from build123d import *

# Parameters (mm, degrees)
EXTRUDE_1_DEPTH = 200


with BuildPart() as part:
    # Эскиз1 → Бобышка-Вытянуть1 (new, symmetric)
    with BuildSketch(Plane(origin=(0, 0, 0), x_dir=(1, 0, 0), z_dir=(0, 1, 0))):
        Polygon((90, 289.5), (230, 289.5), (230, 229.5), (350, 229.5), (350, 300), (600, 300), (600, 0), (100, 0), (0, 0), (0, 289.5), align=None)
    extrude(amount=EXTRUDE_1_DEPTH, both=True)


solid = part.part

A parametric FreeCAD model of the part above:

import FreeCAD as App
import Part
import Sketcher

V = App.Vector


def add_polygon(sketch, points):
    """Adds a closed chain of lines whose ends are joined by coincident constraints."""
    first, n = sketch.GeometryCount, len(points)
    for a, b in zip(points, points[1:] + points[:1]):
        sketch.addGeometry(Part.LineSegment(App.Vector(*a, 0), App.Vector(*b, 0)), False)
    for i in range(n):
        sketch.addConstraint(Sketcher.Constraint("Coincident", first + i, 2, first + (i + 1) % n, 1))

doc = App.newDocument("Part")
params = doc.addObject("Spreadsheet::Sheet", "Params")
for row, (alias, value) in enumerate([
    ("sketch1_width", "230 mm"),
    ("sketch1_width2", "600 mm"),
    ("sketch1_width3", "250 mm"),
    ("sketch1_height", "300 mm"),
    ("sketch1_height2", "60 mm"),
    ("pad1_length", "400 mm"),
], start=1):
    params.set(f"A{row}", alias)
    params.set(f"B{row}", "=" + value)
    params.setAlias(f"B{row}", alias)

body = doc.addObject("PartDesign::Body", "Body")

# Sketch on XZ plane
sketch1 = body.newObject("Sketcher::SketchObject", "Sketch")
sketch1.AttachmentSupport = (doc.getObject("XZ_Plane"), [""])
sketch1.MapMode = "FlatFace"
add_polygon(sketch1, [(230, -290), (0, -290), (0, 0), (600, 0), (600, -300), (350, -300), (350, -230), (230, -230)])  # lines 0-7
sketch1.addConstraint(Sketcher.Constraint("Horizontal", 0))
sketch1.addConstraint(Sketcher.Constraint("Vertical", 1))
sketch1.addConstraint(Sketcher.Constraint("Horizontal", 2))
sketch1.addConstraint(Sketcher.Constraint("Vertical", 3))
sketch1.addConstraint(Sketcher.Constraint("Horizontal", 4))
sketch1.addConstraint(Sketcher.Constraint("Vertical", 5))
sketch1.addConstraint(Sketcher.Constraint("Horizontal", 6))
sketch1.addConstraint(Sketcher.Constraint("Vertical", 7))
sketch1.addConstraint(Sketcher.Constraint("Coincident", 1, 2, -1, 1))
sketch1.addConstraint(Sketcher.Constraint("DistanceX", 0, 2, 0, 1, 230.0))
sketch1.addConstraint(Sketcher.Constraint("DistanceX", 2, 1, 2, 2, 600.0))
sketch1.addConstraint(Sketcher.Constraint("DistanceX", 4, 2, 4, 1, 250.0))
sketch1.addConstraint(Sketcher.Constraint("DistanceY", 3, 2, 3, 1, 300.0))
sketch1.addConstraint(Sketcher.Constraint("DistanceY", 7, 2, 7, 1, 60.0))
sketch1.addConstraint(Sketcher.Constraint("DistanceY", 1, 1, 1, 2, 289.5))
sketch1.setExpression("Constraints[17]", "Params.sketch1_width")
sketch1.setExpression("Constraints[18]", "Params.sketch1_width2")
sketch1.setExpression("Constraints[19]", "Params.sketch1_width3")
sketch1.setExpression("Constraints[20]", "Params.sketch1_height")
sketch1.setExpression("Constraints[21]", "Params.sketch1_height2")
pad1 = body.newObject("PartDesign::Pad", "Pad")
pad1.Profile = sketch1
pad1.setExpression("Length", "Params.pad1_length")
pad1.Midplane = True

doc.recompute()
